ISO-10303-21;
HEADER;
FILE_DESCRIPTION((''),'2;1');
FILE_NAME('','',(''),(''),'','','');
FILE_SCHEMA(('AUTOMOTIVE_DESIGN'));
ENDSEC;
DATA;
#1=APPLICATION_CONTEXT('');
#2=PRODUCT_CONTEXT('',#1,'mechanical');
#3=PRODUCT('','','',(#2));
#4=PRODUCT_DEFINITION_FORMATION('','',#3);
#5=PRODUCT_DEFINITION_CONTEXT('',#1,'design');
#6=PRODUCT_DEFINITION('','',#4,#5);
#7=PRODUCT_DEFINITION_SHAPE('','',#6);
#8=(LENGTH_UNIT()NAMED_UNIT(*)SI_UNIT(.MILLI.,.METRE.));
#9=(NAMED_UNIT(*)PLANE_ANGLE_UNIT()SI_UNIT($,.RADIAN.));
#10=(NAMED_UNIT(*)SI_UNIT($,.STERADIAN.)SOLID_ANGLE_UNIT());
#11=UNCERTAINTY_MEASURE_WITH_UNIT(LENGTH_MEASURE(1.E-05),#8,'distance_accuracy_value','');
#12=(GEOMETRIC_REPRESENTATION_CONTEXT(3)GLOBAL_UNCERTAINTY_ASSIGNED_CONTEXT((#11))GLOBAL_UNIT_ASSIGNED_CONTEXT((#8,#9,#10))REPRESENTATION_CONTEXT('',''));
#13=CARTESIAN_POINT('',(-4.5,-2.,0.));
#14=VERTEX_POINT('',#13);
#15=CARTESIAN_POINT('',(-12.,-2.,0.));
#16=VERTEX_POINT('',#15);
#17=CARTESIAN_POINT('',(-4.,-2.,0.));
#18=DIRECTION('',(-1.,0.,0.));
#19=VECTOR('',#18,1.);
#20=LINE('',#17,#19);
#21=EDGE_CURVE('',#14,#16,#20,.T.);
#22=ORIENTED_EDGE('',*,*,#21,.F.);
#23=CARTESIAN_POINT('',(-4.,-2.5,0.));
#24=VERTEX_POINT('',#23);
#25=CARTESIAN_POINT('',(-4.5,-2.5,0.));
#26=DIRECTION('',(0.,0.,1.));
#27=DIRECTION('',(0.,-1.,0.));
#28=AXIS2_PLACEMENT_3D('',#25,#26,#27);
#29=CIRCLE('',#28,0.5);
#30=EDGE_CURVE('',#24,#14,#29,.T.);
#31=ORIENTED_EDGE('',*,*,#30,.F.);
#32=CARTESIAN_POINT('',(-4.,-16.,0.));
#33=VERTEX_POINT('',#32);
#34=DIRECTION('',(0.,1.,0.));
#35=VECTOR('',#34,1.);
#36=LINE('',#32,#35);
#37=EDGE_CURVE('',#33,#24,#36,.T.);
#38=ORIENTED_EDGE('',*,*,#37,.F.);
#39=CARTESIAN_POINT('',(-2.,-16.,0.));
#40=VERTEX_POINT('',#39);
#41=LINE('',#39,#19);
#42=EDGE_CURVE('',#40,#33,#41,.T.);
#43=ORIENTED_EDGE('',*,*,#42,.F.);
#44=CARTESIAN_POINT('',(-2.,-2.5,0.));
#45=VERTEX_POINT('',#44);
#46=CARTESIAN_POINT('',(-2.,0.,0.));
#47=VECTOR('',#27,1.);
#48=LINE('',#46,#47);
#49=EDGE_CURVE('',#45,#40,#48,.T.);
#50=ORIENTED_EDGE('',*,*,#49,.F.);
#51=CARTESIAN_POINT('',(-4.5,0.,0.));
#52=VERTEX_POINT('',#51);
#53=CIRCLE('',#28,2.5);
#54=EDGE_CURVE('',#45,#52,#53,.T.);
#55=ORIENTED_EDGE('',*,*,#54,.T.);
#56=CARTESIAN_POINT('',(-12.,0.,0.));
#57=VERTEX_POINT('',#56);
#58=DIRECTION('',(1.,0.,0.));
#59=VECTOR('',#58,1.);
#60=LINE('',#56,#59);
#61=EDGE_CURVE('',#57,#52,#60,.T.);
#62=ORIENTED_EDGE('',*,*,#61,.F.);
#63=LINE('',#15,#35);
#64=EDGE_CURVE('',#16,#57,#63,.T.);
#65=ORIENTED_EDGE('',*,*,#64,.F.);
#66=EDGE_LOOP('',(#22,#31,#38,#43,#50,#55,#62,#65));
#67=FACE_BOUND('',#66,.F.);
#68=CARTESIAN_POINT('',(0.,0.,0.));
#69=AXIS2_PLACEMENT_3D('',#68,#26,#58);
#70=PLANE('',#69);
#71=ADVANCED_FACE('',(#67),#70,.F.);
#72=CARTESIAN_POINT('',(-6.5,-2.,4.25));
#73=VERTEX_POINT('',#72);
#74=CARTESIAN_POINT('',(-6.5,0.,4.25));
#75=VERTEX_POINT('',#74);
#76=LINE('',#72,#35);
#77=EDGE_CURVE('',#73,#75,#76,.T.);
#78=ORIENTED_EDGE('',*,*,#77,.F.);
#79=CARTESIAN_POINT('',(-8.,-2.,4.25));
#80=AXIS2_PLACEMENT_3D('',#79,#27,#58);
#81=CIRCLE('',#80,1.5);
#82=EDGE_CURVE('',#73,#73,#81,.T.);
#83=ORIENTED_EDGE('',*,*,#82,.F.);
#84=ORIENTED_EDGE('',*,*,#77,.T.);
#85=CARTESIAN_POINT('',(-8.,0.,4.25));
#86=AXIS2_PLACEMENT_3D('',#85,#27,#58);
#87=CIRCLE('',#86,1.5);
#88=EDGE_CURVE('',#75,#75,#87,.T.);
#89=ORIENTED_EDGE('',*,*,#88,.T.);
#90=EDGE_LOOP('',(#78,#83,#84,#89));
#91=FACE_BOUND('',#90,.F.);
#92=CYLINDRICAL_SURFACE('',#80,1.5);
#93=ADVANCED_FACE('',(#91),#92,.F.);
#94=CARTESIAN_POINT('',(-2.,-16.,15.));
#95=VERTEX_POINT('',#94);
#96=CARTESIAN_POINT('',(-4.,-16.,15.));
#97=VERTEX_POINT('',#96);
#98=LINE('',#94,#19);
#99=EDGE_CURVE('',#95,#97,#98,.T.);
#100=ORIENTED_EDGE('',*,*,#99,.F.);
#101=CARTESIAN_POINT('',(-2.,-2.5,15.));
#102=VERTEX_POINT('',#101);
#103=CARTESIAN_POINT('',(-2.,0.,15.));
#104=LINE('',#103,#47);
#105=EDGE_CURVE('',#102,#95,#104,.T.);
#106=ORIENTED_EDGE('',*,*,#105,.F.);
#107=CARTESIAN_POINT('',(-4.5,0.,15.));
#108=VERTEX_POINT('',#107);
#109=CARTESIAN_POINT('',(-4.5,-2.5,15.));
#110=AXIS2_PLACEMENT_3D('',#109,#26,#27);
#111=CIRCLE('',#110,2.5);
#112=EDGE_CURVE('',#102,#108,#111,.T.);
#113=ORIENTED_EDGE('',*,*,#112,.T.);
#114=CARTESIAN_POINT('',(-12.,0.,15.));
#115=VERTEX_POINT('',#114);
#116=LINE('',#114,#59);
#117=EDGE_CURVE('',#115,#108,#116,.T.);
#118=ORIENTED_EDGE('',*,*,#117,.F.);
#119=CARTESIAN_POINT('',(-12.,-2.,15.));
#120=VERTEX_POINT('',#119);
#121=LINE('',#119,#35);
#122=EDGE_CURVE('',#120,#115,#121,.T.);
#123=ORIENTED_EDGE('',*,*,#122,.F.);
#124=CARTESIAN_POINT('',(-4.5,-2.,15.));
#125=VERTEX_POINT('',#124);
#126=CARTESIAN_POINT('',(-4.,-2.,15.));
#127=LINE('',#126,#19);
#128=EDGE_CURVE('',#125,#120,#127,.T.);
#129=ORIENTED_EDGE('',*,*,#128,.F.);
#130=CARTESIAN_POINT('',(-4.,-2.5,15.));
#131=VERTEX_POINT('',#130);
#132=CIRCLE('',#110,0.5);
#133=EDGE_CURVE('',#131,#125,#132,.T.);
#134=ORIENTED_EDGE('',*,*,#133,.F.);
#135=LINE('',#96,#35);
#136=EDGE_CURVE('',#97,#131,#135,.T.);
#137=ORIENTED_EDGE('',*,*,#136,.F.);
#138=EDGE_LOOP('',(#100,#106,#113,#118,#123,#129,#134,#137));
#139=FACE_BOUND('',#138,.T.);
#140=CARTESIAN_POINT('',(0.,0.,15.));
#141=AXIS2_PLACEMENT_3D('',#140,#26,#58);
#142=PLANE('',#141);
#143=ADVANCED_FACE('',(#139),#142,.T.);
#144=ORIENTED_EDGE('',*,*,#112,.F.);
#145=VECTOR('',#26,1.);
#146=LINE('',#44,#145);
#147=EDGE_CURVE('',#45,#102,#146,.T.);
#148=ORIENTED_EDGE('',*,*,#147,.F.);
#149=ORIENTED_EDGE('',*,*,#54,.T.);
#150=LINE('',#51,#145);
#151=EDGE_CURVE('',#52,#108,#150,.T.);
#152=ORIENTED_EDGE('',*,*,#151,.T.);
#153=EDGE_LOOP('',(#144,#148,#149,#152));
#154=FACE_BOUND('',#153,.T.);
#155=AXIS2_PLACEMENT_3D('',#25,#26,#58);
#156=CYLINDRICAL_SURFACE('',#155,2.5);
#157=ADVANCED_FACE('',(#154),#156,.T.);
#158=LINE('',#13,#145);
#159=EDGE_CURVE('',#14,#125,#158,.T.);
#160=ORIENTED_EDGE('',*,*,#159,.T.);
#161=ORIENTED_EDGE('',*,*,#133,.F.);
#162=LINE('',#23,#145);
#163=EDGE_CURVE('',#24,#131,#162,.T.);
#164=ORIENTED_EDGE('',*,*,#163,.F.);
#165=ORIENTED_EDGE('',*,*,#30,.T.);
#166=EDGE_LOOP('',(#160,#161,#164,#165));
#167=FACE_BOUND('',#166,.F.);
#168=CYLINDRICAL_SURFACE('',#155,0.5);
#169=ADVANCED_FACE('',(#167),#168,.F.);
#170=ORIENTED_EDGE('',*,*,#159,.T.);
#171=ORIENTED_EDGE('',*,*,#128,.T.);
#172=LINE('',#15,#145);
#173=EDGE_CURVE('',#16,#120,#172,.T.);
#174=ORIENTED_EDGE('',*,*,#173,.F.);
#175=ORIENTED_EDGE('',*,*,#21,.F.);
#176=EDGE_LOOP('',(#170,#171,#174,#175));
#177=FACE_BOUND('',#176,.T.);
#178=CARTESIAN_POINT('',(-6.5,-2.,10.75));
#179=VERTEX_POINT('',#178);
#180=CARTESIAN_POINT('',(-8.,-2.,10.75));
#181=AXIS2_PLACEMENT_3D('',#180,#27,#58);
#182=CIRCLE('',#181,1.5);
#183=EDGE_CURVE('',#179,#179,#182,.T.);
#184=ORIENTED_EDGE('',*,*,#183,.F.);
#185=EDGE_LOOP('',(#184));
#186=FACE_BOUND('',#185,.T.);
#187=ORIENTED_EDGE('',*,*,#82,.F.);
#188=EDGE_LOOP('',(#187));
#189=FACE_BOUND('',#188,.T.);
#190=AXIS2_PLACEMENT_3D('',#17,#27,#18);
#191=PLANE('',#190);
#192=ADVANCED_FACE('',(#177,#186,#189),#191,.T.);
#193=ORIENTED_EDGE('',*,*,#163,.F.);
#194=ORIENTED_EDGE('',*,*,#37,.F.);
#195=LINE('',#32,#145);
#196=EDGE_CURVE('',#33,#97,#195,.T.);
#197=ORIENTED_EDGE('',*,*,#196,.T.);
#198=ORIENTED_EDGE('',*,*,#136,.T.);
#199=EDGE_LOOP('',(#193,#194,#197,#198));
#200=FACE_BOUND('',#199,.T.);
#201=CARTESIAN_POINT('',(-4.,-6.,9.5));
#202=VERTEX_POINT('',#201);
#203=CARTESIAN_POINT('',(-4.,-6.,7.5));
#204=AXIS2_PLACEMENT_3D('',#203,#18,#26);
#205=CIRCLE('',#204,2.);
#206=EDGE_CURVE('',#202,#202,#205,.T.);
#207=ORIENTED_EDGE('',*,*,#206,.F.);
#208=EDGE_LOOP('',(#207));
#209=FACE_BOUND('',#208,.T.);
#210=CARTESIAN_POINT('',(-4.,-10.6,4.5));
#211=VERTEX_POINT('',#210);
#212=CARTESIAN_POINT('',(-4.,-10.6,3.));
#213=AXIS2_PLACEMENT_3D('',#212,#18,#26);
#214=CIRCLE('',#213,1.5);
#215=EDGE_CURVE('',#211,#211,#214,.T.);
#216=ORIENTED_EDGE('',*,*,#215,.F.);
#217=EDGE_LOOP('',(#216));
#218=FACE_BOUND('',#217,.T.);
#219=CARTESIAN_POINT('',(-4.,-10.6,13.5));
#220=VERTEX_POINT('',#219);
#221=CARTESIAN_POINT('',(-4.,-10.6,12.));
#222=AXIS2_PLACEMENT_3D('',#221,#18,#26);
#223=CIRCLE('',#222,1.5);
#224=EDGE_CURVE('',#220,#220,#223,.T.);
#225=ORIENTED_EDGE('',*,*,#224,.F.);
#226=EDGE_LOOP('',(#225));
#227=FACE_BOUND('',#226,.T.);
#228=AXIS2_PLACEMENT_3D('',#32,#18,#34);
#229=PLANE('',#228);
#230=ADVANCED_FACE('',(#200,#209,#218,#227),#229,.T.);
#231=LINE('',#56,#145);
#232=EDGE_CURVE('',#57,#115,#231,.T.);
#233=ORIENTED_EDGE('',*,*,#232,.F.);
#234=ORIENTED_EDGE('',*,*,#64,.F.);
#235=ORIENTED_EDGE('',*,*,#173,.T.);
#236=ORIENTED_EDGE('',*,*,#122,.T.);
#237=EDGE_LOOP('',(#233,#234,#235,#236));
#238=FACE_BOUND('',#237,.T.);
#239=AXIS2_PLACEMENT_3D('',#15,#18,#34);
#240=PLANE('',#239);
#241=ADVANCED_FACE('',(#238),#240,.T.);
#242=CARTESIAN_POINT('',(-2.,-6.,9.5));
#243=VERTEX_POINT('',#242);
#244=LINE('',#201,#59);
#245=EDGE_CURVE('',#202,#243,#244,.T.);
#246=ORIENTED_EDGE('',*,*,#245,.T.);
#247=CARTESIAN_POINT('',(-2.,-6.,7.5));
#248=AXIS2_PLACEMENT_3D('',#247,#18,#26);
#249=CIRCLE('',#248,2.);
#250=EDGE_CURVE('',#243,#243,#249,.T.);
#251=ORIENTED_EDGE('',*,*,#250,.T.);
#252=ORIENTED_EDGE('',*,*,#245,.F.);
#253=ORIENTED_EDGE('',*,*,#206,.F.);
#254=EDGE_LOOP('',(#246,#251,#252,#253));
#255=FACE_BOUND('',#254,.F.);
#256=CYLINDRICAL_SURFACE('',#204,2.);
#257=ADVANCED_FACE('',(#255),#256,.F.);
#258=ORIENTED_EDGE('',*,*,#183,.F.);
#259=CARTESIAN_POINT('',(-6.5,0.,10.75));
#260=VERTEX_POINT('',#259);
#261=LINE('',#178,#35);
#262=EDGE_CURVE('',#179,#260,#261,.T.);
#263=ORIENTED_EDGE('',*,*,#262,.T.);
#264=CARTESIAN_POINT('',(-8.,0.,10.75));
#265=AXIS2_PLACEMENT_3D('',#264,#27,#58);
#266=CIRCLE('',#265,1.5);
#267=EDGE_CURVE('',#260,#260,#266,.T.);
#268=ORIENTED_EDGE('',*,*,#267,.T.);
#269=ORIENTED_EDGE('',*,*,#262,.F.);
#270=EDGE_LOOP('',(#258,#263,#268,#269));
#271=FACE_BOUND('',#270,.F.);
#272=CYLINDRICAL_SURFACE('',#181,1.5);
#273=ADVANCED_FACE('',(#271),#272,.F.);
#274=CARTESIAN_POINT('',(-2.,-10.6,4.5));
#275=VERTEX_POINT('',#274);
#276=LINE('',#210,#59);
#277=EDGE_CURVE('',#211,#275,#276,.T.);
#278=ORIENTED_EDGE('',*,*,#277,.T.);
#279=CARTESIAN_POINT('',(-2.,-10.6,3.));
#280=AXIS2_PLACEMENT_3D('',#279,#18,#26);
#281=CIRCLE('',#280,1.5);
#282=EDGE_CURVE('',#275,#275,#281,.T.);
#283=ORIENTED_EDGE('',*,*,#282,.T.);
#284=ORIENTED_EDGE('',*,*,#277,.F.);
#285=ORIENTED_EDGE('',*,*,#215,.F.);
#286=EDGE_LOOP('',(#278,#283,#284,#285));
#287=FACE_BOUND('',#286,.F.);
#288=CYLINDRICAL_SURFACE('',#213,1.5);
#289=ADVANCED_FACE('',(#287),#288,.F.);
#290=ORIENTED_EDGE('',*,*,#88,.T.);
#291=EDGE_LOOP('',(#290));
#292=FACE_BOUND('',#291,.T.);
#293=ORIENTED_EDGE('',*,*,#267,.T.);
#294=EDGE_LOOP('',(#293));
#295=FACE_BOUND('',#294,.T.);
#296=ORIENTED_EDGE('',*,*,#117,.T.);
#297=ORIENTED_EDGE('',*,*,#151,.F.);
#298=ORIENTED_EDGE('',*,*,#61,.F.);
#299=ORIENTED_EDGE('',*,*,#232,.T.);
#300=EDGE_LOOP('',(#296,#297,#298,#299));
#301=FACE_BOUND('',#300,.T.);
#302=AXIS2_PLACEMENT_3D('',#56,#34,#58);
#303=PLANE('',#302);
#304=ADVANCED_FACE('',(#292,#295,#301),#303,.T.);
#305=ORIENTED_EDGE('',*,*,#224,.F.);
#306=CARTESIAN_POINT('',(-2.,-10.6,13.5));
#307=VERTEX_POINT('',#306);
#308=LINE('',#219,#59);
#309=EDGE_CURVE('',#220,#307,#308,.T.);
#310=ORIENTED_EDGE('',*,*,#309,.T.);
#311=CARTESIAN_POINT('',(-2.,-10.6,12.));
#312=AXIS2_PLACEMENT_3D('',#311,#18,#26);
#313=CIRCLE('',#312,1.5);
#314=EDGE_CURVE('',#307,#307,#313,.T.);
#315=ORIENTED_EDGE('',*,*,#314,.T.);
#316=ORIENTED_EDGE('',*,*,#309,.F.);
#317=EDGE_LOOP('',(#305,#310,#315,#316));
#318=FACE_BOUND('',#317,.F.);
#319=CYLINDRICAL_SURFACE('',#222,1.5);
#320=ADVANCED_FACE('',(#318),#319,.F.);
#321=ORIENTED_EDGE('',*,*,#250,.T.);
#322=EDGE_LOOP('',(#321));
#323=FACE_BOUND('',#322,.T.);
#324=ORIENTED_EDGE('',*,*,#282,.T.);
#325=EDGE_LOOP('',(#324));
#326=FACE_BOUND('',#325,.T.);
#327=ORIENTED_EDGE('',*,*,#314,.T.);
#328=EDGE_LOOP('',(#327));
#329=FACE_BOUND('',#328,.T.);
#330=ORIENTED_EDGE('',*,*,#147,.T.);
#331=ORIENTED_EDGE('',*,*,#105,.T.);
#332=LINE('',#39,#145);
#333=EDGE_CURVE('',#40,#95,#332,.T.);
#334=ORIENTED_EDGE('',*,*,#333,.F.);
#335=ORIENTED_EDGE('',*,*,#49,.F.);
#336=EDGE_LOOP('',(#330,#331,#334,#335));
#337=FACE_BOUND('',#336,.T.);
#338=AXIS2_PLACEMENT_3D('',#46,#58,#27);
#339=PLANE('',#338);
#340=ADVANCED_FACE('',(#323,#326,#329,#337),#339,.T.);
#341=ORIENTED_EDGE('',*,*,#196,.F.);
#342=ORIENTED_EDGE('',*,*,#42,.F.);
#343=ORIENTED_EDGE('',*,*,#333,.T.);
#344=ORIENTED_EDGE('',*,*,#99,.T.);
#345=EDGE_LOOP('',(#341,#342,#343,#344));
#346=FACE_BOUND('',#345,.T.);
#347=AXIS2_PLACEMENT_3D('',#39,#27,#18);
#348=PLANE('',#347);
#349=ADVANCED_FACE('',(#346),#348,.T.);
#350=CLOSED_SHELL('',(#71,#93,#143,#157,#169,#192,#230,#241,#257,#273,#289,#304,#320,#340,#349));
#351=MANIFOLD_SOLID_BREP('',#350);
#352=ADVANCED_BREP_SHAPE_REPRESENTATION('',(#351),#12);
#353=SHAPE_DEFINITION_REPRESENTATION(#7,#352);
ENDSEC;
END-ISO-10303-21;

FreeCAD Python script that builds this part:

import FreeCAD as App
import Part
import Sketcher

V = App.Vector


def edges_at(feature, points):
    """Names of the edges that pass closest to the given points."""
    edges = feature.Shape.Edges
    near = lambda p: min(range(len(edges)), key=lambda i: edges[i].distToShape(Part.Vertex(*p))[0])
    return sorted({f"Edge{near(p) + 1}" for p in points})

doc = App.newDocument("Part")
body = doc.addObject("PartDesign::Body", "Body")

sketch1 = doc.addObject("Sketcher::SketchObject", "Sketch")
body.addObject(sketch1)
sketch1.AttachmentSupport = (doc.XY_Plane, [""])
sketch1.MapMode = "FlatFace"
sketch1.addGeometry([
    Part.LineSegment(V(-2, -16, 0), V(-2, 0, 0)),
    Part.LineSegment(V(-2, 0, 0), V(-12, 0, 0)),
    Part.LineSegment(V(-12, 0, 0), V(-12, -2, 0)),
    Part.LineSegment(V(-12, -2, 0), V(-4, -2, 0)),
    Part.LineSegment(V(-4, -2, 0), V(-4, -16, 0)),
    Part.LineSegment(V(-4, -16, 0), V(-2, -16, 0)),
], False)
sketch1.addConstraint([
    Sketcher.Constraint("Coincident", 0, 2, 1, 1),
    Sketcher.Constraint("Coincident", 1, 2, 2, 1),
    Sketcher.Constraint("Coincident", 2, 2, 3, 1),
    Sketcher.Constraint("Coincident", 3, 2, 4, 1),
    Sketcher.Constraint("Coincident", 4, 2, 5, 1),
    Sketcher.Constraint("Coincident", 5, 2, 0, 1),
    Sketcher.Constraint("Vertical", 0),
    Sketcher.Constraint("Horizontal", 1),
    Sketcher.Constraint("Vertical", 2),
    Sketcher.Constraint("Horizontal", 3),
    Sketcher.Constraint("Vertical", 4),
    Sketcher.Constraint("Horizontal", 5),
    Sketcher.Constraint("PointOnObject", 0, 2, -1),
    Sketcher.Constraint("Equal", 5, 2),
    Sketcher.Constraint("DistanceX", 3, 1, 3, 2, 8.0),
    Sketcher.Constraint("DistanceX", 5, 1, 5, 2, 2.0),
    Sketcher.Constraint("DistanceY", 4, 2, 4, 1, 14.0),
    Sketcher.Constraint("DistanceX", 0, 2, -1, 1, 2.0),
])
pad1 = doc.addObject("PartDesign::Pad", "Pad")
body.addObject(pad1)
pad1.Profile = sketch1
pad1.Length = 15

sketch2 = doc.addObject("Sketcher::SketchObject", "Sketch001")
body.addObject(sketch2)
sketch2.AttachmentSupport = (doc.XZ_Plane, [""])
sketch2.MapMode = "FlatFace"
sketch2.AttachmentOffset = App.Placement(V(0, 0, 2), App.Rotation())
sketch2.addGeometry([
    Part.Circle(V(-8, 4.2, 0), V(0, 0, 1), 1.5),
    Part.Circle(V(-8, 10.8, 0), V(0, 0, 1), 1.5),
], False)
sketch2.addConstraint([
    Sketcher.Constraint("Equal", 0, 1),
    Sketcher.Constraint("Vertical", 0, 3, 1, 3),
    Sketcher.Constraint("Diameter", 0, 3.0),
    Sketcher.Constraint("DistanceY", -1, 1, 0, 3, 4.25),
    Sketcher.Constraint("DistanceX", 0, 3, -1, 1, 8.0),
    Sketcher.Constraint("DistanceY", 0, 3, 1, 3, 6.5),
])
pocket1 = doc.addObject("PartDesign::Pocket", "Pocket")
body.addObject(pocket1)
pocket1.Profile = sketch2
pocket1.Length = 10

sketch3 = doc.addObject("Sketcher::SketchObject", "Sketch002")
body.addObject(sketch3)
sketch3.AttachmentSupport = (doc.YZ_Plane, [""])
sketch3.MapMode = "FlatFace"
sketch3.AttachmentOffset = App.Placement(V(0, 0, -4), App.Rotation())
sketch3.addGeometry([
    Part.Circle(V(-10.6, 12, 0), V(0, 0, 1), 1.5),
    Part.Circle(V(-10.6, 3, 0), V(0, 0, 1), 1.5),
], False)
sketch3.addConstraint([
    Sketcher.Constraint("Equal", 0, 1),
    Sketcher.Constraint("Vertical", 0, 3, 1, 3),
    Sketcher.Constraint("Diameter", 0, 3.0),
    Sketcher.Constraint("DistanceY", -1, 1, 1, 3, 3.0),
    Sketcher.Constraint("DistanceY", -1, 1, 0, 3, 12.0),
    Sketcher.Constraint("DistanceX", 0, 3, -1, 1, 10.6),
])
pocket2 = doc.addObject("PartDesign::Pocket", "Pocket001")
body.addObject(pocket2)
pocket2.Profile = sketch3
pocket2.Length = 10
pocket2.Reversed = True

sketch4 = doc.addObject("Sketcher::SketchObject", "Sketch003")
body.addObject(sketch4)
sketch4.AttachmentSupport = (doc.YZ_Plane, [""])
sketch4.MapMode = "FlatFace"
sketch4.AttachmentOffset = App.Placement(V(0, 0, -4), App.Rotation())
sketch4.addGeometry(Part.Circle(V(-6, 7.5, 0), V(0, 0, 1), 2), False)
sketch4.addConstraint([
    Sketcher.Constraint("Diameter", 0, 4.0),
    Sketcher.Constraint("DistanceX", 0, 3, -1, 1, 6.0),
    Sketcher.Constraint("DistanceY", -1, 1, 0, 3, 7.5),
])
pocket3 = doc.addObject("PartDesign::Pocket", "Pocket002")
body.addObject(pocket3)
pocket3.Profile = sketch4
pocket3.Length = 10
pocket3.Reversed = True
doc.recompute()

fillet = doc.addObject("PartDesign::Fillet", "Fillet")
body.addObject(fillet)
fillet.Base = (pocket3, edges_at(pocket3, [(-2, 0, 7.5)]))
fillet.Radius = 2.5
doc.recompute()

fillet2 = doc.addObject("PartDesign::Fillet", "Fillet001")
body.addObject(fillet2)
fillet2.Base = (fillet, edges_at(fillet, [(-4, -2, 7.5)]))
fillet2.Radius = 0.5

doc.recompute()
